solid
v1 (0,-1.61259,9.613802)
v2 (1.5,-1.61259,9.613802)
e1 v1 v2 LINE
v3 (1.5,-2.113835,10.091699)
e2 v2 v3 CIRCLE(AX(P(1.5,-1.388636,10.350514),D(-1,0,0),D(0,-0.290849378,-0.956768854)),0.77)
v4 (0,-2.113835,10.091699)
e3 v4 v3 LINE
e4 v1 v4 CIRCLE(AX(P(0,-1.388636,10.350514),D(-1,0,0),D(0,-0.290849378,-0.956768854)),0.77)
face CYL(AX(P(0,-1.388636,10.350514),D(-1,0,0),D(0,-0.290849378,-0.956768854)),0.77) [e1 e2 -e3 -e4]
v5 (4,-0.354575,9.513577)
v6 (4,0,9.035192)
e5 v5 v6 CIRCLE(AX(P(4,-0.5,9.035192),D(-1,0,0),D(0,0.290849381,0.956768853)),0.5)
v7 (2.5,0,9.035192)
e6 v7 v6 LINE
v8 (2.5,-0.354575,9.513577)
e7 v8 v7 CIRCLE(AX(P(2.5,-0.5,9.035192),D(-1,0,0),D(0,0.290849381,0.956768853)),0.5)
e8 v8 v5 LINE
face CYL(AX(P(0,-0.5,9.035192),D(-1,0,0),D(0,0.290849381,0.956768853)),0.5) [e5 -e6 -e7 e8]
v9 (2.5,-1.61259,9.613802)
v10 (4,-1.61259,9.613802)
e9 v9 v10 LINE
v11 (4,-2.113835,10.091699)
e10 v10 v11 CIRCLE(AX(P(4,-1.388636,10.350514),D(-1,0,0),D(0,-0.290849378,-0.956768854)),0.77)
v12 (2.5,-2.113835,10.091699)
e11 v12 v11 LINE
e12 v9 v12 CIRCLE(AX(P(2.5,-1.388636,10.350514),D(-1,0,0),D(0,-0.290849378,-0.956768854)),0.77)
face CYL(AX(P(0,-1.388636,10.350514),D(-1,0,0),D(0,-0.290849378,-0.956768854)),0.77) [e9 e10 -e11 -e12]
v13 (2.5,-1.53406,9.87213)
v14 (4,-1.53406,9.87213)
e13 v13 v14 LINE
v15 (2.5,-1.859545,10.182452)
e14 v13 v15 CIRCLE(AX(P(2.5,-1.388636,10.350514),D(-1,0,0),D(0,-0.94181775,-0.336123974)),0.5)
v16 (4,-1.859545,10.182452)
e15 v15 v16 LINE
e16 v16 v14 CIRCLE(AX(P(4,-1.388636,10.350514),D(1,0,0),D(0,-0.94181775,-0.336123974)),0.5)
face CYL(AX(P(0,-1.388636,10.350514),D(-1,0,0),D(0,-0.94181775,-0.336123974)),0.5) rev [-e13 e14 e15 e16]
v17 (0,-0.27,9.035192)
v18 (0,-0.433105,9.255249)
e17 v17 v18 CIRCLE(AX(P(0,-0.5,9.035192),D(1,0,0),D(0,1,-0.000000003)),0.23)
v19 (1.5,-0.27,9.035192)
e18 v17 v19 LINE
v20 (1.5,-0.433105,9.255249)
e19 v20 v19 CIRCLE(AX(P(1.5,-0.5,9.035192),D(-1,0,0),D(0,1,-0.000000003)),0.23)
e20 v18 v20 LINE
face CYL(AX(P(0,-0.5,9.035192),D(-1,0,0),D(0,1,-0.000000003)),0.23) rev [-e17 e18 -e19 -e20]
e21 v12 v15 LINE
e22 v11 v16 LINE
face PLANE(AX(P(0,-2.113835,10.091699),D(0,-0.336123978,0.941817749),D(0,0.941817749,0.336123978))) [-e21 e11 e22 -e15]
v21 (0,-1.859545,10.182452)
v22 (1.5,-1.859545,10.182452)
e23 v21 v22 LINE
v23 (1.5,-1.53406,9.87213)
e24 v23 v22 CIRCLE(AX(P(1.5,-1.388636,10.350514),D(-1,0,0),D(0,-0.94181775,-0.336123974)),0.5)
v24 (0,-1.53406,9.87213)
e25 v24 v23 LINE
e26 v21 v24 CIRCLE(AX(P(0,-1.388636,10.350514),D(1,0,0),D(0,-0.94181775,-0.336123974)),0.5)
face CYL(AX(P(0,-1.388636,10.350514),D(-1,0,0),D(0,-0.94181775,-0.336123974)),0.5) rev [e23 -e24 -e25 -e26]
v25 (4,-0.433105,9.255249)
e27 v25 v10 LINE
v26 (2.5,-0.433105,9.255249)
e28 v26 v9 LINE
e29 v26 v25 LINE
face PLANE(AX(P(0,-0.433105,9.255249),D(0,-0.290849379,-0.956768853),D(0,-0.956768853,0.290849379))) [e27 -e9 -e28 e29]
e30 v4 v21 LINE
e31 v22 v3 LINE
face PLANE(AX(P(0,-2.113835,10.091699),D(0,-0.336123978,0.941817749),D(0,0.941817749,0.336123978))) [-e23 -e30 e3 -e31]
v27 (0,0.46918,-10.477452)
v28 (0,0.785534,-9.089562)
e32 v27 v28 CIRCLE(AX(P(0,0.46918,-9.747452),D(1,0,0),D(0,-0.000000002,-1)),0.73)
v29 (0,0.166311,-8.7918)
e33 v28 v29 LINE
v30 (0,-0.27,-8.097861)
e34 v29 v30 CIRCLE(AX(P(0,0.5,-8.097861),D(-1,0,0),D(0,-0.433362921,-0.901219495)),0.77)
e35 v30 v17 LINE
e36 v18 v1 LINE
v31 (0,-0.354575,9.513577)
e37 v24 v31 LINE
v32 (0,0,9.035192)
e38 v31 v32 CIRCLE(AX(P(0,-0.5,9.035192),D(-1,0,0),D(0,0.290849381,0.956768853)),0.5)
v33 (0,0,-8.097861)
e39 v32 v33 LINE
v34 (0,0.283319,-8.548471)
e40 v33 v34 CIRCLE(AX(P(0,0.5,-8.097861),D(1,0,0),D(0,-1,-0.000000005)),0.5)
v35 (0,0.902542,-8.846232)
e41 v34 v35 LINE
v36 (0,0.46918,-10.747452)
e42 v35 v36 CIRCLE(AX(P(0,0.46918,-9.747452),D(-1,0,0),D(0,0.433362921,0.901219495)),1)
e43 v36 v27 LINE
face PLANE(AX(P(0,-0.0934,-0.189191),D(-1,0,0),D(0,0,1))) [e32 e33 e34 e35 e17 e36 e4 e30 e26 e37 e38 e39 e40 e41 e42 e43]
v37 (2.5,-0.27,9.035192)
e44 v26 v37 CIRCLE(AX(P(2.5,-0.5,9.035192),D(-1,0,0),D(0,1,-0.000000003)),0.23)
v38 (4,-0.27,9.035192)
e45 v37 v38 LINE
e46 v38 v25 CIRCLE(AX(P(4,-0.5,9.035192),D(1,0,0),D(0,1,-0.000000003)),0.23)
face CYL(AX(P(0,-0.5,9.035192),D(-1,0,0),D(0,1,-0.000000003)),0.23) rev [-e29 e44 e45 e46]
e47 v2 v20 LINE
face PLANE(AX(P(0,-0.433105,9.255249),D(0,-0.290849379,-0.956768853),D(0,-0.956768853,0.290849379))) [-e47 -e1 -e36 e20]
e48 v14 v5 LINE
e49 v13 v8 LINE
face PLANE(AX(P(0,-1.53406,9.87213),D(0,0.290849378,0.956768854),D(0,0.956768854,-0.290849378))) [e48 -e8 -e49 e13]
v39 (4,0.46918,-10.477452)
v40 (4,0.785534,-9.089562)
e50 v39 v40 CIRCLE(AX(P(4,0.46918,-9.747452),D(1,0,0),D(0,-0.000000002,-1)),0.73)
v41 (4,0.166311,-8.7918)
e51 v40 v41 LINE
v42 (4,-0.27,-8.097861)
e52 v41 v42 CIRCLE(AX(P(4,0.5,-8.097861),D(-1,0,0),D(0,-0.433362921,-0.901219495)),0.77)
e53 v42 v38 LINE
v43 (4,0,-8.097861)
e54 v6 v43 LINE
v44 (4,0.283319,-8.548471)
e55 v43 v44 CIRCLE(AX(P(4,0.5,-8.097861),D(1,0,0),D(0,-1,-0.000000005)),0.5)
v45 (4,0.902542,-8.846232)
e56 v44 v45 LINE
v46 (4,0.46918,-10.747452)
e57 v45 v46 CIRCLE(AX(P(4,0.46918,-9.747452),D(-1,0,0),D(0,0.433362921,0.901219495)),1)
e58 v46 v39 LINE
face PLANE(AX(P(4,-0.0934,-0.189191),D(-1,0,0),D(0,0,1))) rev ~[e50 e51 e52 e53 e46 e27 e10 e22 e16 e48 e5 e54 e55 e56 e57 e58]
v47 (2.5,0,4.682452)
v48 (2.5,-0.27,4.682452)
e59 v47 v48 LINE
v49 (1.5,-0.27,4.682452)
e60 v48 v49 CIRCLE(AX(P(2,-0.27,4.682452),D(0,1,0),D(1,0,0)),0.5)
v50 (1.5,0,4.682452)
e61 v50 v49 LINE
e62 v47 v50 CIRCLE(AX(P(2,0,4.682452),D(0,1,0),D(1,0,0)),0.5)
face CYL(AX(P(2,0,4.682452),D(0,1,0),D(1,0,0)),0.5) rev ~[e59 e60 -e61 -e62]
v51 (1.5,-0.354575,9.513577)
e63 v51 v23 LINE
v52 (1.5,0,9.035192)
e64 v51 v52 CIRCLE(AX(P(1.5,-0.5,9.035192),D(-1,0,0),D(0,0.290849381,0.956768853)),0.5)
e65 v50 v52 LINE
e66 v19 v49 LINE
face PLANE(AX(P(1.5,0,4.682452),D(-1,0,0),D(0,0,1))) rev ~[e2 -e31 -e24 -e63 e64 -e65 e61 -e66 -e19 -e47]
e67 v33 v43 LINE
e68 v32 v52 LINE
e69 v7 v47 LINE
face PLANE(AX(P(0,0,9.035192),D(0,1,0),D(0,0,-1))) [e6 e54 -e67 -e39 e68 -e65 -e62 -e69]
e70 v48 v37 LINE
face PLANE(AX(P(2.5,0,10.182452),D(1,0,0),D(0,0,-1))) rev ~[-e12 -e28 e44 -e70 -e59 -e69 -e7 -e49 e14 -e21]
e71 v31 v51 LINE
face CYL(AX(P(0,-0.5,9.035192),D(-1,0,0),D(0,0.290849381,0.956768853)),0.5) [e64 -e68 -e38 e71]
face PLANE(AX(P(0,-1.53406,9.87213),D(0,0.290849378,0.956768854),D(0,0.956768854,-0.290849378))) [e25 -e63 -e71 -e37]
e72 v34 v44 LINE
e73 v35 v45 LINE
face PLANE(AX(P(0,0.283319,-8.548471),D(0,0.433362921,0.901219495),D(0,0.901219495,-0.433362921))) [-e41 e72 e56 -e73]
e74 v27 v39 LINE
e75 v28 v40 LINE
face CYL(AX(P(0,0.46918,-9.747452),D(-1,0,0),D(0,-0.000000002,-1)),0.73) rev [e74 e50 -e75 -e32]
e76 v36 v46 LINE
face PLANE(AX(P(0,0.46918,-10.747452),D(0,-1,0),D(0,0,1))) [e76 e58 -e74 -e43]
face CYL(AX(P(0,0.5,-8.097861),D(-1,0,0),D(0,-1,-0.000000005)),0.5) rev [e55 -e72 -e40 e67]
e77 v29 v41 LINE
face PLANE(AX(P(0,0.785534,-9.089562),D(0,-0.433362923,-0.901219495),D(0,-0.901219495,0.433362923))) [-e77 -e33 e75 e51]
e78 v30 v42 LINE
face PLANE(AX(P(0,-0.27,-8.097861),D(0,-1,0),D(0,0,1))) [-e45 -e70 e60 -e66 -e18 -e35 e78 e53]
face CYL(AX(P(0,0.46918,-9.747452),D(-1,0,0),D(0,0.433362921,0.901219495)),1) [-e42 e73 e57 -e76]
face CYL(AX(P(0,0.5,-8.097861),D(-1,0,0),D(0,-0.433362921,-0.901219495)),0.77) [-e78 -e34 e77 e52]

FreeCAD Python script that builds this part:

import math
import FreeCAD as App
import Part
import Sketcher
from FreeCAD import Vector
Q = App.Units.Quantity

doc = App.newDocument("Part")
body = doc.addObject("PartDesign::Body", "Body")

sketch1 = doc.addObject("Sketcher::SketchObject", "Sketch")
body.addObject(sketch1)
sketch1.AttachmentSupport = (doc.YZ_Plane, [""])
sketch1.MapMode = "FlatFace"
sketch1.addGeometry(Part.LineSegment(Vector(0, -8.1, 0), Vector(0, 9.04, 0)), False)
sketch1.addGeometry(Part.ArcOfCircle(Part.Circle(Vector(-0.5, 9.04, 0), Vector(0, 0, 1), 0.5), math.radians(0), math.radians(73)), False)
sketch1.addGeometry(Part.LineSegment(Vector(-0.35, 9.51, 0), Vector(-1.53, 9.87, 0)), False)
sketch1.addGeometry(Part.ArcOfCircle(Part.Circle(Vector(-1.39, 10.35, 0), Vector(0, 0, 1), 0.5), math.radians(-160), math.radians(-107)), False)
sketch1.addGeometry(Part.LineSegment(Vector(-1.86, 10.18, 0), Vector(-2.11, 10.09, 0)), False)
sketch1.addGeometry(Part.ArcOfCircle(Part.Circle(Vector(-1.39, 10.35, 0), Vector(0, 0, 1), 0.77), math.radians(-160), math.radians(-107)), False)
sketch1.addGeometry(Part.LineSegment(Vector(-1.61, 9.61, 0), Vector(-0.43, 9.26, 0)), False)
sketch1.addGeometry(Part.ArcOfCircle(Part.Circle(Vector(-0.5, 9.04, 0), Vector(0, 0, 1), 0.23), math.radians(0), math.radians(73)), False)
sketch1.addGeometry(Part.LineSegment(Vector(-0.27, 9.04, 0), Vector(-0.27, -8.1, 0)), False)
sketch1.addGeometry(Part.ArcOfCircle(Part.Circle(Vector(0.5, -8.1, 0), Vector(0, 0, 1), 0.77), math.radians(-180), math.radians(-116)), False)
sketch1.addGeometry(Part.LineSegment(Vector(0.17, -8.79, 0), Vector(0.79, -9.09, 0)), False)
sketch1.addGeometry(Part.ArcOfCircle(Part.Circle(Vector(0.47, -9.75, 0), Vector(0, 0, 1), 0.73), math.radians(-90), math.radians(64)), False)
sketch1.addGeometry(Part.LineSegment(Vector(0.47, -10.48, 0), Vector(0.47, -10.75, 0)), False)
sketch1.addGeometry(Part.ArcOfCircle(Part.Circle(Vector(0.47, -9.75, 0), Vector(0, 0, 1), 1), math.radians(-90), math.radians(64)), False)
sketch1.addGeometry(Part.LineSegment(Vector(0.9, -8.85, 0), Vector(0.28, -8.55, 0)), False)
sketch1.addGeometry(Part.ArcOfCircle(Part.Circle(Vector(0.5, -8.1, 0), Vector(0, 0, 1), 0.5), math.radians(-180), math.radians(-116)), False)
sketch1.addConstraint(Sketcher.Constraint("Tangent", 0, 2, 1, 1))
sketch1.addConstraint(Sketcher.Constraint("Tangent", 1, 2, 2, 1))
sketch1.addConstraint(Sketcher.Constraint("Tangent", 2, 2, 3, 2))
sketch1.addConstraint(Sketcher.Constraint("Coincident", 3, 1, 4, 1))
sketch1.addConstraint(Sketcher.Constraint("Coincident", 4, 2, 5, 1))
sketch1.addConstraint(Sketcher.Constraint("Tangent", 5, 2, 6, 1))
sketch1.addConstraint(Sketcher.Constraint("Tangent", 6, 2, 7, 2))
sketch1.addConstraint(Sketcher.Constraint("Tangent", 7, 1, 8, 1))
sketch1.addConstraint(Sketcher.Constraint("Tangent", 8, 2, 9, 1))
sketch1.addConstraint(Sketcher.Constraint("Tangent", 9, 2, 10, 1))
sketch1.addConstraint(Sketcher.Constraint("Tangent", 10, 2, 11, 2))
sketch1.addConstraint(Sketcher.Constraint("Coincident", 11, 1, 12, 1))
sketch1.addConstraint(Sketcher.Constraint("Coincident", 12, 2, 13, 1))
sketch1.addConstraint(Sketcher.Constraint("Tangent", 13, 2, 14, 1))
sketch1.addConstraint(Sketcher.Constraint("Tangent", 14, 2, 15, 2))
sketch1.addConstraint(Sketcher.Constraint("Tangent", 15, 1, 0, 1))
sketch1.addConstraint(Sketcher.Constraint("Vertical", 0))
sketch1.addConstraint(Sketcher.Constraint("Vertical", 8))
sketch1.addConstraint(Sketcher.Constraint("Vertical", 12))
sketch1.addConstraint(Sketcher.Constraint("Coincident", 5, 3, 3, 3))
sketch1.addConstraint(Sketcher.Constraint("Coincident", 7, 3, 1, 3))
sketch1.addConstraint(Sketcher.Constraint("Coincident", 13, 3, 11, 3))
sketch1.addConstraint(Sketcher.Constraint("Coincident", 15, 3, 9, 3))
sketch1.addConstraint(Sketcher.Constraint("Equal", 1, 3))
sketch1.addConstraint(Sketcher.Constraint("Equal", 5, 9))
sketch1.addConstraint(Sketcher.Constraint("Equal", 3, 15))
sketch1.addConstraint(Sketcher.Constraint("PointOnObject", 0, 2, -2))
sketch1.addConstraint(Sketcher.Constraint("Parallel", 10, 14))
sketch1.addConstraint(Sketcher.Constraint("Vertical", 13, 3, 11, 1))
sketch1.addConstraint(Sketcher.Constraint("Radius", 13, Q("1 mm")))
sketch1.addConstraint(Sketcher.Constraint("Radius", 1, Q("0.5 mm")))
sketch1.addConstraint(Sketcher.Constraint("Radius", 5, Q("0.77 mm")))
sketch1.addConstraint(Sketcher.Constraint("DistanceY", -1, 1, 4, 2, Q("10.091699 mm")))
sketch1.addConstraint(Sketcher.Constraint("DistanceY", 9, 2, -1, 1, Q("8.7918 mm")))
sketch1.addConstraint(Sketcher.Constraint("DistanceX", 4, 2, 5, 3, Q("0.7252 mm")))
sketch1.addConstraint(Sketcher.Constraint("DistanceY", 10, 2, 9, 3, Q("0.991701 mm")))
sketch1.addConstraint(Sketcher.Constraint("Distance", 2, Q("1.23278 mm")))
sketch1.addConstraint(Sketcher.Constraint("DistanceY", 0, 1, 0, 2, Q("17.133053 mm")))
sketch1.addConstraint(Sketcher.Constraint("DistanceY", 9, 3, -1, 1, Q("8.097861 mm")))
sketch1.addConstraint(Sketcher.Constraint("DistanceX", 3, 1, 5, 3, Q("0.470909 mm")))
pad1 = doc.addObject("PartDesign::Pad", "Pad")
body.addObject(pad1)
pad1.Profile = sketch1
pad1.Length = 4

sketch2 = doc.addObject("Sketcher::SketchObject", "Sketch001")
body.addObject(sketch2)
sketch2.AttachmentSupport = (doc.XZ_Plane, [""])
sketch2.MapMode = "FlatFace"
sketch2.addGeometry(Part.LineSegment(Vector(1.5, 4.7, 0), Vector(1.5, 10.2, 0)), False)
sketch2.addGeometry(Part.LineSegment(Vector(1.5, 10.2, 0), Vector(2.5, 10.2, 0)), False)
sketch2.addGeometry(Part.LineSegment(Vector(2.5, 10.2, 0), Vector(2.5, 4.7, 0)), False)
sketch2.addGeometry(Part.ArcOfCircle(Part.Circle(Vector(2, 4.7, 0), Vector(0, 0, 1), 0.5), math.radians(180), math.radians(360)), False)
sketch2.addConstraint(Sketcher.Constraint("Coincident", 0, 2, 1, 1))
sketch2.addConstraint(Sketcher.Constraint("Coincident", 1, 2, 2, 1))
sketch2.addConstraint(Sketcher.Constraint("Tangent", 2, 2, 3, 2))
sketch2.addConstraint(Sketcher.Constraint("Tangent", 3, 1, 0, 1))
sketch2.addConstraint(Sketcher.Constraint("Vertical", 0))
sketch2.addConstraint(Sketcher.Constraint("Horizontal", 1))
sketch2.addConstraint(Sketcher.Constraint("Vertical", 2))
sketch2.addConstraint(Sketcher.Constraint("Radius", 3, Q("0.5 mm")))
sketch2.addConstraint(Sketcher.Constraint("DistanceY", 0, 1, 0, 2, Q("5.5 mm")))
sketch2.addConstraint(Sketcher.Constraint("DistanceX", -1, 1, 3, 3, Q("2 mm")))
sketch2.addConstraint(Sketcher.Constraint("DistanceY", -1, 1, 3, 3, Q("4.682452 mm")))
pocket1 = doc.addObject("PartDesign::Pocket", "Pocket")
body.addObject(pocket1)
pocket1.Profile = sketch2
pocket1.Length = 4.15
pocket1.Reversed = True

doc.recompute()
